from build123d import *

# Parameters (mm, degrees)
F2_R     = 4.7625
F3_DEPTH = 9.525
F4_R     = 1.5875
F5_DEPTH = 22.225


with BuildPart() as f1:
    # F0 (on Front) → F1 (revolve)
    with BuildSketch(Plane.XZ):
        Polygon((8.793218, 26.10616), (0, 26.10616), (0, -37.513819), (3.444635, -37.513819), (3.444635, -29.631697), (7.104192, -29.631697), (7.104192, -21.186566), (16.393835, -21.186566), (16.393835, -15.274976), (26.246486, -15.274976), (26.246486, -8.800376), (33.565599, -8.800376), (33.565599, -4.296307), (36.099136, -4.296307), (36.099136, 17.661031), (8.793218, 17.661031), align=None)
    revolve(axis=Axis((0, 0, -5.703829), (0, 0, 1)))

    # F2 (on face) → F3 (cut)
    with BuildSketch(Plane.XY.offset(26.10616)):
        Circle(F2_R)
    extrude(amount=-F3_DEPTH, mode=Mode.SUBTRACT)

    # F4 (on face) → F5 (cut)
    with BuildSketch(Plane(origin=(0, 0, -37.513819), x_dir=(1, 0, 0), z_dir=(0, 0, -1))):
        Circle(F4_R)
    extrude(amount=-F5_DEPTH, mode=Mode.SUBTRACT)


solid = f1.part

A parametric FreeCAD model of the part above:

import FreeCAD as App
import Part
import Sketcher

V = App.Vector
Q = App.Units.Quantity


def add_polygon(sketch, points):
    """Adds a closed chain of lines whose ends are joined by coincident constraints."""
    first, n = sketch.GeometryCount, len(points)
    for a, b in zip(points, points[1:] + points[:1]):
        sketch.addGeometry(Part.LineSegment(App.Vector(*a, 0), App.Vector(*b, 0)), False)
    for i in range(n):
        sketch.addConstraint(Sketcher.Constraint("Coincident", first + i, 2, first + (i + 1) % n, 1))

doc = App.newDocument("Part")
body = doc.addObject("PartDesign::Body", "Body")

# Sketch on XZ plane
sketch1 = body.newObject("Sketcher::SketchObject", "Sketch")
sketch1.AttachmentSupport = (doc.getObject("XZ_Plane"), [""])
sketch1.MapMode = "FlatFace"
add_polygon(sketch1, [(8.8, 26.1), (0, 26.1), (0, -37.5), (3.4, -37.5), (3.4, -29.6), (7.1, -29.6), (7.1, -21.2), (16.4, -21.2), (16.4, -15.3), (26.2, -15.3), (26.2, -8.8), (33.6, -8.8), (33.6, -4.3), (36.1, -4.3), (36.1, 17.7), (8.8, 17.7)])  # lines 0-15
sketch1.addConstraint(Sketcher.Constraint("Horizontal", 0))
sketch1.addConstraint(Sketcher.Constraint("Vertical", 1))
sketch1.addConstraint(Sketcher.Constraint("Horizontal", 2))
sketch1.addConstraint(Sketcher.Constraint("Vertical", 3))
sketch1.addConstraint(Sketcher.Constraint("Horizontal", 4))
sketch1.addConstraint(Sketcher.Constraint("Vertical", 5))
sketch1.addConstraint(Sketcher.Constraint("Horizontal", 6))
sketch1.addConstraint(Sketcher.Constraint("Vertical", 7))
sketch1.addConstraint(Sketcher.Constraint("Horizontal", 8))
sketch1.addConstraint(Sketcher.Constraint("Vertical", 9))
sketch1.addConstraint(Sketcher.Constraint("Horizontal", 10))
sketch1.addConstraint(Sketcher.Constraint("Vertical", 11))
sketch1.addConstraint(Sketcher.Constraint("Horizontal", 12))
sketch1.addConstraint(Sketcher.Constraint("Vertical", 13))
sketch1.addConstraint(Sketcher.Constraint("Horizontal", 14))
sketch1.addConstraint(Sketcher.Constraint("Vertical", 15))
sketch1.addConstraint(Sketcher.Constraint("PointOnObject", 0, 2, -2))
sketch1.addConstraint(Sketcher.Constraint("DistanceY", 9, 1, 9, 2, Q("6.4746 mm")))
sketch1.addConstraint(Sketcher.Constraint("DistanceX", 8, 1, 8, 2, Q("9.852651 mm")))
sketch1.addConstraint(Sketcher.Constraint("DistanceX", 14, 2, 14, 1, Q("27.305918 mm")))
sketch1.addConstraint(Sketcher.Constraint("DistanceY", 1, 2, 1, 1, Q("63.619979 mm")))
sketch1.addConstraint(Sketcher.Constraint("DistanceY", 3, 1, 3, 2, Q("7.882122 mm")))
sketch1.addConstraint(Sketcher.Constraint("DistanceY", 5, 1, 5, 2, Q("8.445131 mm")))
sketch1.addConstraint(Sketcher.Constraint("DistanceY", 7, 1, 7, 2, Q("5.91159 mm")))
sketch1.addConstraint(Sketcher.Constraint("DistanceY", 11, 1, 11, 2, Q("4.504069 mm")))
sketch1.addConstraint(Sketcher.Constraint("DistanceY", 13, 1, 13, 2, Q("21.957338 mm")))
sketch1.addConstraint(Sketcher.Constraint("DistanceX", -1, 1, 10, 2, Q("33.565599 mm")))
sketch1.addConstraint(Sketcher.Constraint("DistanceX", 3, 2, 6, 2, Q("12.9492 mm")))
sketch1.addConstraint(Sketcher.Constraint("DistanceX", 7, 2, 12, 2, Q("19.705301 mm")))
sketch1.addConstraint(Sketcher.Constraint("DistanceX", 0, 2, 0, 1, Q("8.793218 mm")))
sketch1.addConstraint(Sketcher.Constraint("DistanceX", 4, 1, 4, 2, Q("3.659557 mm")))
sketch1.addConstraint(Sketcher.Constraint("DistanceY", -1, 1, 0, 2, Q("26.10616 mm")))
revolution = body.newObject("PartDesign::Revolution", "Revolution")
revolution.Profile = sketch1
revolution.ReferenceAxis = (sketch1, ["V_Axis"])
revolution.Angle = 360

# Sketch on XY plane
sketch2 = body.newObject("Sketcher::SketchObject", "Sketch001")
sketch2.AttachmentSupport = (doc.getObject("XY_Plane"), [""])
sketch2.MapMode = "FlatFace"
sketch2.AttachmentOffset = App.Placement(V(0, 0, 26.10616), App.Rotation())
sketch2.addGeometry(Part.Circle(V(0, 0, 0), V(0, 0, 1), 4.8), False)
sketch2.addConstraint(Sketcher.Constraint("Coincident", 0, 3, -1, 1))
sketch2.addConstraint(Sketcher.Constraint("Diameter", 0, Q("0.375 in")))
pocket1 = body.newObject("PartDesign::Pocket", "Pocket")
pocket1.Profile = sketch2
pocket1.Length = Q("0.375 in")

# Sketch on XY plane
sketch3 = body.newObject("Sketcher::SketchObject", "Sketch002")
sketch3.AttachmentSupport = (doc.getObject("XY_Plane"), [""])
sketch3.MapMode = "FlatFace"
sketch3.AttachmentOffset = App.Placement(V(0, 0, -37.513819), App.Rotation())
sketch3.addGeometry(Part.Circle(V(0, 0, 0), V(0, 0, 1), 1.6), False)
sketch3.addConstraint(Sketcher.Constraint("Coincident", 0, 3, -1, 1))
sketch3.addConstraint(Sketcher.Constraint("Diameter", 0, Q("0.125 in")))
pocket2 = body.newObject("PartDesign::Pocket", "Pocket001")
pocket2.Profile = sketch3
pocket2.Length = Q("0.875 in")
pocket2.Reversed = True

doc.recompute()
